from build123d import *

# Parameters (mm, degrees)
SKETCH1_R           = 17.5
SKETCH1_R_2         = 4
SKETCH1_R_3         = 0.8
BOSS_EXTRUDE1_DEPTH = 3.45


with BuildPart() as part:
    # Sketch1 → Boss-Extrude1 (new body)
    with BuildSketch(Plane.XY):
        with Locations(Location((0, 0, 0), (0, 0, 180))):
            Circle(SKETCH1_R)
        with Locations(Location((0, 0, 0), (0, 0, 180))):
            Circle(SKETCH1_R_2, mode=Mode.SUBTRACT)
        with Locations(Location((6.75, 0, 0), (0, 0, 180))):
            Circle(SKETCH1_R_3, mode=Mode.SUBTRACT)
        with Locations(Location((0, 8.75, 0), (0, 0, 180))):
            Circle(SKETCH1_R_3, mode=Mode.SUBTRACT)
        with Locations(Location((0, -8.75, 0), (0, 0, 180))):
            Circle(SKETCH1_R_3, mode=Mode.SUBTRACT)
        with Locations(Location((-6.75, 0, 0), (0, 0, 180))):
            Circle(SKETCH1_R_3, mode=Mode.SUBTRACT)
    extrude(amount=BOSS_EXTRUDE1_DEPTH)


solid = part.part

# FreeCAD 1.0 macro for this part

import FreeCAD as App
import Part
import Sketcher
Q = App.Units.Quantity

doc = App.newDocument("Part")
body = doc.addObject("PartDesign::Body", "Body")

# Sketch on XY plane
sketch1 = body.newObject("Sketcher::SketchObject", "Sketch")
sketch1.AttachmentSupport = (doc.getObject("XY_Plane"), [""])
sketch1.MapMode = "FlatFace"
sketch1.addGeometry(Part.Circle(App.Vector(0, 0, 0), App.Vector(0, 0, 1), 17.5), False)
sketch1.addGeometry(Part.Circle(App.Vector(6.75, 0, 0), App.Vector(0, 0, 1), 0.8), False)
sketch1.addGeometry(Part.Circle(App.Vector(0, 8.75, 0), App.Vector(0, 0, 1), 0.8), False)
sketch1.addGeometry(Part.Circle(App.Vector(0, 0, 0), App.Vector(0, 0, 1), 4), False)
sketch1.addGeometry(Part.Circle(App.Vector(0, -8.75, 0), App.Vector(0, 0, 1), 0.8), False)
sketch1.addGeometry(Part.Circle(App.Vector(-6.75, 0, 0), App.Vector(0, 0, 1), 0.8), False)
sketch1.addConstraint(Sketcher.Constraint("Coincident", 0, 3, -1, 1))
sketch1.addConstraint(Sketcher.Constraint("Coincident", 3, 3, -1, 1))
sketch1.addConstraint(Sketcher.Constraint("Equal", 1, 2))
sketch1.addConstraint(Sketcher.Constraint("Equal", 2, 4))
sketch1.addConstraint(Sketcher.Constraint("Equal", 4, 5))
sketch1.addConstraint(Sketcher.Constraint("Symmetric", 2, 3, 4, 3, -1, 1))
sketch1.addConstraint(Sketcher.Constraint("Symmetric", 1, 3, 5, 3, -1, 1))
sketch1.addConstraint(Sketcher.Constraint("PointOnObject", 1, 3, -1))
sketch1.addConstraint(Sketcher.Constraint("PointOnObject", 2, 3, -2))
sketch1.addConstraint(Sketcher.Constraint("Diameter", 0, Q("35 mm")))
sketch1.addConstraint(Sketcher.Constraint("Diameter", 3, Q("8 mm")))
sketch1.addConstraint(Sketcher.Constraint("Diameter", 1, Q("1.6 mm")))
sketch1.addConstraint(Sketcher.Constraint("DistanceY", 4, 3, 2, 3, Q("17.5 mm")))
sketch1.addConstraint(Sketcher.Constraint("DistanceX", 5, 3, 1, 3, Q("13.5 mm")))
pad1 = body.newObject("PartDesign::Pad", "Pad")
pad1.Profile = sketch1
pad1.Length = 3.45

doc.recompute()
